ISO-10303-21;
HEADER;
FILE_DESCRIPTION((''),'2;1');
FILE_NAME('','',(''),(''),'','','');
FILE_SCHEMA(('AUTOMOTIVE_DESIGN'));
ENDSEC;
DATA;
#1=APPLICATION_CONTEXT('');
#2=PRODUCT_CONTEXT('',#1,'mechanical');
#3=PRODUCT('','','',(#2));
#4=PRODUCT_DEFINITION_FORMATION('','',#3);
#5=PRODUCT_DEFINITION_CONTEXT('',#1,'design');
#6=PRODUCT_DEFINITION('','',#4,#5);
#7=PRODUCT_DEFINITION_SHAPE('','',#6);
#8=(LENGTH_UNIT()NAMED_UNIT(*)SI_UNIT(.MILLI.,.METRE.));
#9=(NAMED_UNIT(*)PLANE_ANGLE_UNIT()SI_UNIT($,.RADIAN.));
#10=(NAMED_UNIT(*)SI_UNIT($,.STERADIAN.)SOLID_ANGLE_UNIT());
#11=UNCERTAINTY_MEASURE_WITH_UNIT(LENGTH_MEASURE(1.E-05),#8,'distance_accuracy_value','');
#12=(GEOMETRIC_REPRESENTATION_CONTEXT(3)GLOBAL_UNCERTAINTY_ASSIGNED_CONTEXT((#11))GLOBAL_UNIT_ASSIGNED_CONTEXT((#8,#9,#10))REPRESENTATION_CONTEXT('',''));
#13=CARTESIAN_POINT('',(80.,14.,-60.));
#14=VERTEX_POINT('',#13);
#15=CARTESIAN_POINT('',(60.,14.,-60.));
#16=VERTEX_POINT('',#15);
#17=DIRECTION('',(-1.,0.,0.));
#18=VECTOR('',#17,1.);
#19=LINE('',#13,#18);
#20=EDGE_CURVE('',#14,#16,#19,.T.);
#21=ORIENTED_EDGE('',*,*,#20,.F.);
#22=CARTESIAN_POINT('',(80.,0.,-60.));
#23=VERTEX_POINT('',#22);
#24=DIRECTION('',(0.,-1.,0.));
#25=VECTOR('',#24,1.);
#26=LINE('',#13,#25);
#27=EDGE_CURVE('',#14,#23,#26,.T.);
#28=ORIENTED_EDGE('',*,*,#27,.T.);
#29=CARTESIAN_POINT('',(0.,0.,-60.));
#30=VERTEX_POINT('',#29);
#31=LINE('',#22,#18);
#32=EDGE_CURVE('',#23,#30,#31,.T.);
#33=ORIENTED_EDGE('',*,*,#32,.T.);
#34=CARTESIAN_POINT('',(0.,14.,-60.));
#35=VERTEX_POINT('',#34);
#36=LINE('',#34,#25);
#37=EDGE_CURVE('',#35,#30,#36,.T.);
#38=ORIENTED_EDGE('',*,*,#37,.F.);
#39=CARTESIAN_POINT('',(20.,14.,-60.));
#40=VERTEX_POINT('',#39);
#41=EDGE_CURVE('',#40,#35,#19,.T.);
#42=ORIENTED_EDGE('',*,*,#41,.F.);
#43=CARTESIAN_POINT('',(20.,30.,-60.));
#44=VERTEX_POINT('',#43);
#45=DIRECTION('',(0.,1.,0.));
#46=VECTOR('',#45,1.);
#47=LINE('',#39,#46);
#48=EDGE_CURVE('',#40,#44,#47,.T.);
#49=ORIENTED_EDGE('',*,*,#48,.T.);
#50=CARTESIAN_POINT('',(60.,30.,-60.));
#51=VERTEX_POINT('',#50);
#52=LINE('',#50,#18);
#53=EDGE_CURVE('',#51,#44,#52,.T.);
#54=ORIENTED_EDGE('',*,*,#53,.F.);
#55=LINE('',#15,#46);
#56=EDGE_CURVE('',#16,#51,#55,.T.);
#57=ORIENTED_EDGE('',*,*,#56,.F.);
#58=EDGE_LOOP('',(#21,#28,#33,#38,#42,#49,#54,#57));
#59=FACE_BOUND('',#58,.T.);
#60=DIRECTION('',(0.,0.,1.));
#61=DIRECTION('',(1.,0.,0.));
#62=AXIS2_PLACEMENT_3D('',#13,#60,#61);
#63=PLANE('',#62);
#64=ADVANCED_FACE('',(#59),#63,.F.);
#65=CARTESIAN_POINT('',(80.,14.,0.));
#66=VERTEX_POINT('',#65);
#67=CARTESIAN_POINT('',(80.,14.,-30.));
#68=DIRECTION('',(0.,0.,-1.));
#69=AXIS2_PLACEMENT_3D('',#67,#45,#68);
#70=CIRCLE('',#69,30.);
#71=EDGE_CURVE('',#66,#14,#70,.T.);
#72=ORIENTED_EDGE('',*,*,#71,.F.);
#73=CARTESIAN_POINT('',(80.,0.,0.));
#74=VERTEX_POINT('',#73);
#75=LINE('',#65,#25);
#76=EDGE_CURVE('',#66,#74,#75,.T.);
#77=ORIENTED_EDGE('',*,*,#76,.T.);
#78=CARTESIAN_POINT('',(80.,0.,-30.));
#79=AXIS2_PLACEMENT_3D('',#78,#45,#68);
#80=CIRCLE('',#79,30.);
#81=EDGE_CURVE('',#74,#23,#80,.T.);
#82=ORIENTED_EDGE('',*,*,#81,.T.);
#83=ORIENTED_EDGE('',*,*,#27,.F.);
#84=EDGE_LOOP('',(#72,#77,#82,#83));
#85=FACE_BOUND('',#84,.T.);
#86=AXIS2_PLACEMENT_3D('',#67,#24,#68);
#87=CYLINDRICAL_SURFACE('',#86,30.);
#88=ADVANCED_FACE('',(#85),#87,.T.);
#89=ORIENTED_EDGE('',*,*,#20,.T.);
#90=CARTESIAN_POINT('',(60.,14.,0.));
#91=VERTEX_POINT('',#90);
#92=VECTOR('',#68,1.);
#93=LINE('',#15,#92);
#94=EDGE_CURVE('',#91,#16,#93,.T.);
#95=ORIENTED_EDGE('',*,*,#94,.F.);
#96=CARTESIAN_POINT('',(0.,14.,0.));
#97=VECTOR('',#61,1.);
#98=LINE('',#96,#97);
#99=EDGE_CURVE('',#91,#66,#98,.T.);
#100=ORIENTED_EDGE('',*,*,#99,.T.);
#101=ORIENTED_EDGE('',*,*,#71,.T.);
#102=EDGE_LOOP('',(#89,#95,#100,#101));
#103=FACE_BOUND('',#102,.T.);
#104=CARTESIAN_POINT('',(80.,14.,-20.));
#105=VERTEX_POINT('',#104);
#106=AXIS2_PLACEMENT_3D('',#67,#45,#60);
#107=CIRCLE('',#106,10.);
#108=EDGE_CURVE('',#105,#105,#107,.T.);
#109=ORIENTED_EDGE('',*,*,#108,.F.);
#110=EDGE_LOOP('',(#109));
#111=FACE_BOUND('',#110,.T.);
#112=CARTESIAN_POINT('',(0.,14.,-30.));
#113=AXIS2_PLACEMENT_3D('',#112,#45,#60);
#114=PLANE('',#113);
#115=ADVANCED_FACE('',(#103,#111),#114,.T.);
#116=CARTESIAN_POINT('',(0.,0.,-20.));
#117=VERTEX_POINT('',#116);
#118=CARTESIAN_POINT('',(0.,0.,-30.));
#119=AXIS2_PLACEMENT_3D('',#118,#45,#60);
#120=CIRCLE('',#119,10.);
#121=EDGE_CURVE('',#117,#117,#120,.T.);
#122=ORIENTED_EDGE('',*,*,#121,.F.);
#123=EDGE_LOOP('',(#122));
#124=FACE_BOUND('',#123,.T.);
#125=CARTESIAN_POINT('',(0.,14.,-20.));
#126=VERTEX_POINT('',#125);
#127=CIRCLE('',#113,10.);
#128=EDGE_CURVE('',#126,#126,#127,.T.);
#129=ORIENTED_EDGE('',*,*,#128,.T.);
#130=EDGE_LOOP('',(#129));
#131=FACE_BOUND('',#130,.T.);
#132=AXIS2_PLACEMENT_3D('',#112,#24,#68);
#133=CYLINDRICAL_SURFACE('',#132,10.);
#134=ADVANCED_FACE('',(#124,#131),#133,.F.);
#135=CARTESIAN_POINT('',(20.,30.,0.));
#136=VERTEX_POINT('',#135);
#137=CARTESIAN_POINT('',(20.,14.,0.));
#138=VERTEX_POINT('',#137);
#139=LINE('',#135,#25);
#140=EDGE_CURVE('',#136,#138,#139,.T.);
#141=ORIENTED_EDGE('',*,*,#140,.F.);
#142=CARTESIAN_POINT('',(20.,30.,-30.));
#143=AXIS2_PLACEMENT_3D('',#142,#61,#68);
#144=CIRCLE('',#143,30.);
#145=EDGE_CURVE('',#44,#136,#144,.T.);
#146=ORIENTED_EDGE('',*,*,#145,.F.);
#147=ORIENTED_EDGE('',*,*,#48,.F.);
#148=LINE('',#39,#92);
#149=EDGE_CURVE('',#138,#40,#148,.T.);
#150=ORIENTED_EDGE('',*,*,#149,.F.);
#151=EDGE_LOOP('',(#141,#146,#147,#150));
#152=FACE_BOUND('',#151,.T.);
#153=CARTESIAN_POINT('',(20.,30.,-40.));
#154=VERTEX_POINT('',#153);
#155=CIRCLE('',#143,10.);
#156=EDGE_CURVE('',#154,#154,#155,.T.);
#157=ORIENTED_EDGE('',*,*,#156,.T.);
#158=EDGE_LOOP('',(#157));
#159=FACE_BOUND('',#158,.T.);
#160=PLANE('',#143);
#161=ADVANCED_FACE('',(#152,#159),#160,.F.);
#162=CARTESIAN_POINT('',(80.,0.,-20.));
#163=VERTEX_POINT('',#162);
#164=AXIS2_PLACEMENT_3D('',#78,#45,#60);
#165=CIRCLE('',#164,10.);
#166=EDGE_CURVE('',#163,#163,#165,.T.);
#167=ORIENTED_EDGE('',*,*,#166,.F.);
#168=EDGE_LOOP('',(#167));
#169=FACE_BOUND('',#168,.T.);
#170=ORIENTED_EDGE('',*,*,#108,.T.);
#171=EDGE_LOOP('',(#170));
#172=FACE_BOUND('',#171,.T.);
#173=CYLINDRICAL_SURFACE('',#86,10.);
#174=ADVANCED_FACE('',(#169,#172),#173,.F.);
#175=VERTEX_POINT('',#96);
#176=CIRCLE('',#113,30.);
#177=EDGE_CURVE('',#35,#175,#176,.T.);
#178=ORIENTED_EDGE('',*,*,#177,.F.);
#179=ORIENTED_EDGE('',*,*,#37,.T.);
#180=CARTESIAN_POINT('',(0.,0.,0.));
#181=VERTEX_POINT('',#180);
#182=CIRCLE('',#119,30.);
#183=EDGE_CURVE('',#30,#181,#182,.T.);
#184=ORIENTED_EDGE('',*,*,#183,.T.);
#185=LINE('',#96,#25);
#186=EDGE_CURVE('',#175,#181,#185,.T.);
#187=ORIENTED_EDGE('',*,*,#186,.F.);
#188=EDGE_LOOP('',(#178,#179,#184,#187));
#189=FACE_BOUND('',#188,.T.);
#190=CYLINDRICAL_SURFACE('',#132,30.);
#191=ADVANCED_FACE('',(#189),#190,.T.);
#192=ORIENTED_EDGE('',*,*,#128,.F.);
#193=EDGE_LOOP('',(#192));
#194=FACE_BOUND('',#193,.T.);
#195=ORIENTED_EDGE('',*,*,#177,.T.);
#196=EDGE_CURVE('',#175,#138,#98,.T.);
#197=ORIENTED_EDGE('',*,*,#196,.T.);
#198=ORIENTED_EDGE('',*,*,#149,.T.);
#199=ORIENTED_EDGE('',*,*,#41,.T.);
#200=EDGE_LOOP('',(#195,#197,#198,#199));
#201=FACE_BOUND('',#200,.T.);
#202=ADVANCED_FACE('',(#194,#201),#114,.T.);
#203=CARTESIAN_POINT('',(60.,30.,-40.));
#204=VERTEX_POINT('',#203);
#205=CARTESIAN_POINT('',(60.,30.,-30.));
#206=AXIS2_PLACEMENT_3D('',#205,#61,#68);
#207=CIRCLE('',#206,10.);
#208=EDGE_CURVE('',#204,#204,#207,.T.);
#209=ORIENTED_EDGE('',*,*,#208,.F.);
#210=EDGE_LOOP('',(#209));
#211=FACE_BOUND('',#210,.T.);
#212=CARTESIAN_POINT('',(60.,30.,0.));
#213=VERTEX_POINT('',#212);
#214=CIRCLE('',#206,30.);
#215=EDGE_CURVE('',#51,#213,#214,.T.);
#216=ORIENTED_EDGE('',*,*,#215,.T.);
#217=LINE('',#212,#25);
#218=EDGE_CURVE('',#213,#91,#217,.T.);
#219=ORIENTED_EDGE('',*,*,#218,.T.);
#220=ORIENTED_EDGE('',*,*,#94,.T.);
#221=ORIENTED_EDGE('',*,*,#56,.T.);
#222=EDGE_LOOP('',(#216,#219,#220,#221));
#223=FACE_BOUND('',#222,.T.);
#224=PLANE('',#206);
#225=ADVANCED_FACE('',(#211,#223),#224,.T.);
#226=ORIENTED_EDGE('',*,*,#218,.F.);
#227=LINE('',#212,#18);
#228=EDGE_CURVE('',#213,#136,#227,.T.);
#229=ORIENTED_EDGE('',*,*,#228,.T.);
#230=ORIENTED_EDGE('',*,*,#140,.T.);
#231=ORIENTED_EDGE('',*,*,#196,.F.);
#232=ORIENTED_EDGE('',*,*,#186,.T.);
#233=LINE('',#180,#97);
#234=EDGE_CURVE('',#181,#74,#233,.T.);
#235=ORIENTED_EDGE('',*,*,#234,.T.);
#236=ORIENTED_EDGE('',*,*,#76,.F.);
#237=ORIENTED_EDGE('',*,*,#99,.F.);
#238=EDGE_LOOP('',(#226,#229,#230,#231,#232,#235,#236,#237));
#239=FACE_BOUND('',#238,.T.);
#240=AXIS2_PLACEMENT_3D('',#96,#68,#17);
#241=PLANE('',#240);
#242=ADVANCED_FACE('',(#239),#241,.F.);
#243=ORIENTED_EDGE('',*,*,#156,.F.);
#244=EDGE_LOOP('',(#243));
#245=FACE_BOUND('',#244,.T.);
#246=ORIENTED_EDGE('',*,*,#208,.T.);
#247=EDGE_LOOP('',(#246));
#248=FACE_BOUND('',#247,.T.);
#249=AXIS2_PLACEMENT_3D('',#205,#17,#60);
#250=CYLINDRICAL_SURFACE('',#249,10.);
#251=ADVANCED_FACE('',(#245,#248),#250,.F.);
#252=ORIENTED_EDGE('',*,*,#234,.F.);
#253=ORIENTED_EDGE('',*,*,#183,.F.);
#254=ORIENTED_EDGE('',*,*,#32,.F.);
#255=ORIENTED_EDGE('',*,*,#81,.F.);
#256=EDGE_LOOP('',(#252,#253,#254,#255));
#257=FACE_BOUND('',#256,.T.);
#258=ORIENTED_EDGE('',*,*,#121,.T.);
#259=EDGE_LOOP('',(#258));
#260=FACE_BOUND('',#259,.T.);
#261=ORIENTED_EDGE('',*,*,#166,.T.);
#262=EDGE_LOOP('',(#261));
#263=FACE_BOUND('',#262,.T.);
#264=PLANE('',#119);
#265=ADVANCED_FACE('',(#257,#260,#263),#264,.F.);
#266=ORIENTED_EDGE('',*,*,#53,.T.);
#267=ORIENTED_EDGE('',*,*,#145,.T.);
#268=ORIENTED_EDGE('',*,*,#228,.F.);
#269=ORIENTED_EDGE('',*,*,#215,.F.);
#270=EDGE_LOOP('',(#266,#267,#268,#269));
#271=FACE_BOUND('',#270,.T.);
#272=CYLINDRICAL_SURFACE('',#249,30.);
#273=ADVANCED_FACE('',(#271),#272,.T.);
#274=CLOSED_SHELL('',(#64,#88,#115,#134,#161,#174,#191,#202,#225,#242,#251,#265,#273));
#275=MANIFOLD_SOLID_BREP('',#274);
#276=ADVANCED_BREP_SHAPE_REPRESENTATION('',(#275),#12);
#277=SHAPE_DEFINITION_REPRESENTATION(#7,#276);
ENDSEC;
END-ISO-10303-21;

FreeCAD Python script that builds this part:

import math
import FreeCAD as App
import Part
import Sketcher

V = App.Vector

doc = App.newDocument("Part")
body = doc.addObject("PartDesign::Body", "Body")

# Sketch on XZ plane
sketch1 = body.newObject("Sketcher::SketchObject", "Sketch")
sketch1.AttachmentSupport = (doc.getObject("XZ_Plane"), [""])
sketch1.MapMode = "FlatFace"
sketch1.addGeometry([
    Part.LineSegment(V(0, 0, 0), V(80, 0, 0)),  # 0
    Part.ArcOfCircle(Part.Circle(V(80, -30, 0), V(0, 0, 1), 30), math.radians(-90), math.radians(90)),  # 1
    Part.LineSegment(V(80, -60, 0), V(0, -60, 0)),  # 2
    Part.ArcOfCircle(Part.Circle(V(0, -30, 0), V(0, 0, 1), 30), math.radians(90), math.radians(270)),  # 3
    Part.Circle(V(0, -30, 0), V(0, 0, 1), 10),  # 4
    Part.Circle(V(80, -30, 0), V(0, 0, 1), 10),  # 5
], False)
sketch1.addConstraint([
    Sketcher.Constraint("Tangent", 0, 2, 1, 2),
    Sketcher.Constraint("Tangent", 1, 1, 2, 1),
    Sketcher.Constraint("Tangent", 2, 2, 3, 2),
    Sketcher.Constraint("Tangent", 3, 1, 0, 1),
    Sketcher.Constraint("Horizontal", 0),
    Sketcher.Constraint("Horizontal", 2),
    Sketcher.Constraint("Coincident", 3, 1, -1, 1),
    Sketcher.Constraint("Coincident", 4, 3, 3, 3),
    Sketcher.Constraint("Coincident", 5, 3, 1, 3),
    Sketcher.Constraint("Equal", 4, 5),
    Sketcher.Constraint("Diameter", 4, 20.0),
    Sketcher.Constraint("Radius", 1, 30.0),
    Sketcher.Constraint("DistanceX", 0, 1, 0, 2, 80.0),
])
pad1 = body.newObject("PartDesign::Pad", "Pad")
pad1.Profile = sketch1
pad1.Length = 14
pad1.Reversed = True

# Sketch on YZ plane
sketch2 = body.newObject("Sketcher::SketchObject", "Sketch001")
sketch2.AttachmentSupport = (doc.getObject("YZ_Plane"), [""])
sketch2.MapMode = "FlatFace"
sketch2.AttachmentOffset = App.Placement(V(0, 0, 20), App.Rotation())
sketch2.addGeometry([
    Part.LineSegment(V(14, -60, 0), V(30, -60, 0)),  # 0
    Part.ArcOfCircle(Part.Circle(V(30, -30, 0), V(0, 0, 1), 30), math.radians(-90), math.radians(90)),  # 1
    Part.LineSegment(V(30, 0, 0), V(14, 0, 0)),  # 2
    Part.LineSegment(V(14, 0, 0), V(14, -60, 0)),  # 3
    Part.Circle(V(30, -30, 0), V(0, 0, 1), 10),  # 4
], False)
sketch2.addConstraint([
    Sketcher.Constraint("Tangent", 0, 2, 1, 1),
    Sketcher.Constraint("Tangent", 1, 2, 2, 1),
    Sketcher.Constraint("Coincident", 2, 2, 3, 1),
    Sketcher.Constraint("Coincident", 3, 2, 0, 1),
    Sketcher.Constraint("Horizontal", 0),
    Sketcher.Constraint("Horizontal", 2),
    Sketcher.Constraint("Vertical", 3),
    Sketcher.Constraint("Coincident", 4, 3, 1, 3),
    Sketcher.Constraint("PointOnObject", 1, 2, -1),
    Sketcher.Constraint("Diameter", 4, 20.0),
    Sketcher.Constraint("Radius", 1, 30.0),
    Sketcher.Constraint("DistanceX", 0, 1, 0, 2, 16.0),
    Sketcher.Constraint("DistanceX", -1, 1, 1, 3, 30.0),
])
pad2 = body.newObject("PartDesign::Pad", "Pad001")
pad2.Profile = sketch2
pad2.Length = 40

doc.recompute()
